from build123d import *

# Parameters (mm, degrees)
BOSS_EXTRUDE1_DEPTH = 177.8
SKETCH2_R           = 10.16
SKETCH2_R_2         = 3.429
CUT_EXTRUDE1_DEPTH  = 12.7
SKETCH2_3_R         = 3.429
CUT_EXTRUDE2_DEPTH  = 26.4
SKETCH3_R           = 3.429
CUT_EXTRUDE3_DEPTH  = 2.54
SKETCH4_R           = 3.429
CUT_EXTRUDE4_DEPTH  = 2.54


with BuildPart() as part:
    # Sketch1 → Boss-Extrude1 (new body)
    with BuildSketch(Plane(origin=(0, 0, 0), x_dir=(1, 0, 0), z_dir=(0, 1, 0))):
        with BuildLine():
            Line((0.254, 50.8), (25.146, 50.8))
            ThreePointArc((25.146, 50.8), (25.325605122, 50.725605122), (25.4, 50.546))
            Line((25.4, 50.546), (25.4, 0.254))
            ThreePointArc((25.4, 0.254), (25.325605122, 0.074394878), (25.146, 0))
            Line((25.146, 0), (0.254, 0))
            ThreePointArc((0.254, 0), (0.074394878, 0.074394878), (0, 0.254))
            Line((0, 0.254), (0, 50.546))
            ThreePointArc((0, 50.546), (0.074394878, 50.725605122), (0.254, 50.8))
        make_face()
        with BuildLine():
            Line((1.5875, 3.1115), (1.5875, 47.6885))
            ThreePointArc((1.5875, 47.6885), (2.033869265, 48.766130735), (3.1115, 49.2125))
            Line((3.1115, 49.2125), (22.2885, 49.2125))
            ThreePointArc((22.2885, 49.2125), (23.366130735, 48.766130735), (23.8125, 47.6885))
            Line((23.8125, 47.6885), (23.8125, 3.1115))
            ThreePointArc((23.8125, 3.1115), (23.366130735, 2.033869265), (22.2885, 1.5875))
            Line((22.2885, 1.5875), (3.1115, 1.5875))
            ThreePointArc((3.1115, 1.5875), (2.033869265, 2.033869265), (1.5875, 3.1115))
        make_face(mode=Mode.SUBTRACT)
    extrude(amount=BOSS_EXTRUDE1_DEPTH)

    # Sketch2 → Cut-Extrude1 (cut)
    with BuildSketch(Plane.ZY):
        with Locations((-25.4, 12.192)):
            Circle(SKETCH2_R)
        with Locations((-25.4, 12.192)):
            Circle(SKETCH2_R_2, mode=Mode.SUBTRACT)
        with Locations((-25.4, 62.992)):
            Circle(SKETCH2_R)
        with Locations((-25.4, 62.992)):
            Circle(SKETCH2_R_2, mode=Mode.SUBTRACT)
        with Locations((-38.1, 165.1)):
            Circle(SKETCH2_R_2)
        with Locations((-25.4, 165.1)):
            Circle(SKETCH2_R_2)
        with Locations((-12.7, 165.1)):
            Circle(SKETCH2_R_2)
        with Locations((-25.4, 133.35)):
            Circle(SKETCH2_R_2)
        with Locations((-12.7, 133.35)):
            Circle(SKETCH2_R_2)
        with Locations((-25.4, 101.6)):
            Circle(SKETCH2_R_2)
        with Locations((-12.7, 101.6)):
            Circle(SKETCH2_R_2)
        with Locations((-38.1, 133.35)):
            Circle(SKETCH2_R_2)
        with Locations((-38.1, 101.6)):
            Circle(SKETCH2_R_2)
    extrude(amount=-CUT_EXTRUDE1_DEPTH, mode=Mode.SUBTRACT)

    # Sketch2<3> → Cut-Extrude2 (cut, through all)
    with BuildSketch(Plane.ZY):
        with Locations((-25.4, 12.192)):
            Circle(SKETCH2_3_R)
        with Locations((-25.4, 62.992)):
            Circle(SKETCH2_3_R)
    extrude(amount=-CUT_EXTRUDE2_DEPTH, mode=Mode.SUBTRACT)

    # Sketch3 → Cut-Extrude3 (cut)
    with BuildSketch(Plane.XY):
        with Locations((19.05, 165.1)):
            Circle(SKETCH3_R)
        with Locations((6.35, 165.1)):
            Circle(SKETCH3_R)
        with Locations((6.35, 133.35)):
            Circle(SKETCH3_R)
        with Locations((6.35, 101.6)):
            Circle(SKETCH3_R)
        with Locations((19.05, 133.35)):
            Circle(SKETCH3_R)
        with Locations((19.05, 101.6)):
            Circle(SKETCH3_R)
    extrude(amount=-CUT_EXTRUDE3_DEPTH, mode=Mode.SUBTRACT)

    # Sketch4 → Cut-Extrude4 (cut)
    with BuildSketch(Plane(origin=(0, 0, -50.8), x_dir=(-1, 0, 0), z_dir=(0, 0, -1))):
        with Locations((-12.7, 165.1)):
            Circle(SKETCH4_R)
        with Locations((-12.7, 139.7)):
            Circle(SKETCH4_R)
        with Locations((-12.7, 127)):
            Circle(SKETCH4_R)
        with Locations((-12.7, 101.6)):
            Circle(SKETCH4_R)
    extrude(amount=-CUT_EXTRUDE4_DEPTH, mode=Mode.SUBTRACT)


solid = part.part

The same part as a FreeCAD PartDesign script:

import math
import FreeCAD as App
import Part
import Sketcher

V = App.Vector
Q = App.Units.Quantity

doc = App.newDocument("Part")
body = doc.addObject("PartDesign::Body", "Body")
body.AllowCompound = True

# Sketch on XZ plane
sketch1 = doc.addObject("Sketcher::SketchObject", "Sketch")
body.addObject(sketch1)
sketch1.AttachmentSupport = (doc.XZ_Plane, [""])
sketch1.MapMode = "FlatFace"
sketch1.addGeometry(Part.LineSegment(V(25.146, -50.8, 0), V(0.254, -50.8, 0)), False)
sketch1.addGeometry(Part.ArcOfCircle(Part.Circle(V(0.254, -50.546, 0), V(0, 0, 1), 0.254), math.radians(-180), math.radians(-90)), False)
sketch1.addGeometry(Part.LineSegment(V(0, -50.546, 0), V(0, -0.254, 0)), False)
sketch1.addGeometry(Part.ArcOfCircle(Part.Circle(V(0.254, -0.254, 0), V(0, 0, 1), 0.254), math.radians(90), math.radians(180)), False)
sketch1.addGeometry(Part.LineSegment(V(0.254, 0, 0), V(25.146, 0, 0)), False)
sketch1.addGeometry(Part.ArcOfCircle(Part.Circle(V(25.146, -0.254, 0), V(0, 0, 1), 0.254), math.radians(0), math.radians(90)), False)
sketch1.addGeometry(Part.LineSegment(V(25.4, -0.254, 0), V(25.4, -50.546, 0)), False)
sketch1.addGeometry(Part.ArcOfCircle(Part.Circle(V(25.146, -50.546, 0), V(0, 0, 1), 0.254), math.radians(-90), math.radians(0)), False)
sketch1.addGeometry(Part.LineSegment(V(1.5875, -3.1115, 0), V(1.5875, -47.6885, 0)), False)
sketch1.addGeometry(Part.ArcOfCircle(Part.Circle(V(3.1115, -47.6885, 0), V(0, 0, 1), 1.524), math.radians(180), math.radians(270)), False)
sketch1.addGeometry(Part.LineSegment(V(3.1115, -49.2125, 0), V(22.2885, -49.2125, 0)), False)
sketch1.addGeometry(Part.ArcOfCircle(Part.Circle(V(22.2885, -47.6885, 0), V(0, 0, 1), 1.524), math.radians(-90), math.radians(0)), False)
sketch1.addGeometry(Part.LineSegment(V(23.8125, -47.6885, 0), V(23.8125, -3.1115, 0)), False)
sketch1.addGeometry(Part.ArcOfCircle(Part.Circle(V(22.2885, -3.1115, 0), V(0, 0, 1), 1.524), math.radians(0), math.radians(90)), False)
sketch1.addGeometry(Part.LineSegment(V(22.2885, -1.5875, 0), V(3.1115, -1.5875, 0)), False)
sketch1.addGeometry(Part.ArcOfCircle(Part.Circle(V(3.1115, -3.1115, 0), V(0, 0, 1), 1.524), math.radians(90), math.radians(180)), False)
sketch1.addConstraint(Sketcher.Constraint("Tangent", 0, 2, 1, 2))
sketch1.addConstraint(Sketcher.Constraint("Tangent", 1, 1, 2, 1))
sketch1.addConstraint(Sketcher.Constraint("Tangent", 2, 2, 3, 2))
sketch1.addConstraint(Sketcher.Constraint("Tangent", 3, 1, 4, 1))
sketch1.addConstraint(Sketcher.Constraint("Tangent", 4, 2, 5, 2))
sketch1.addConstraint(Sketcher.Constraint("Tangent", 5, 1, 6, 1))
sketch1.addConstraint(Sketcher.Constraint("Tangent", 6, 2, 7, 2))
sketch1.addConstraint(Sketcher.Constraint("Tangent", 7, 1, 0, 1))
sketch1.addConstraint(Sketcher.Constraint("Tangent", 8, 2, 9, 1))
sketch1.addConstraint(Sketcher.Constraint("Tangent", 9, 2, 10, 1))
sketch1.addConstraint(Sketcher.Constraint("Tangent", 10, 2, 11, 1))
sketch1.addConstraint(Sketcher.Constraint("Tangent", 11, 2, 12, 1))
sketch1.addConstraint(Sketcher.Constraint("Tangent", 12, 2, 13, 1))
sketch1.addConstraint(Sketcher.Constraint("Tangent", 13, 2, 14, 1))
sketch1.addConstraint(Sketcher.Constraint("Tangent", 14, 2, 15, 1))
sketch1.addConstraint(Sketcher.Constraint("Tangent", 15, 2, 8, 1))
sketch1.addConstraint(Sketcher.Constraint("Horizontal", 0))
sketch1.addConstraint(Sketcher.Constraint("Vertical", 2))
sketch1.addConstraint(Sketcher.Constraint("Horizontal", 4))
sketch1.addConstraint(Sketcher.Constraint("Vertical", 6))
sketch1.addConstraint(Sketcher.Constraint("Vertical", 8))
sketch1.addConstraint(Sketcher.Constraint("Horizontal", 10))
sketch1.addConstraint(Sketcher.Constraint("Vertical", 12))
sketch1.addConstraint(Sketcher.Constraint("Horizontal", 14))
sketch1.addConstraint(Sketcher.Constraint("Equal", 1, 3))
sketch1.addConstraint(Sketcher.Constraint("Equal", 3, 5))
sketch1.addConstraint(Sketcher.Constraint("Equal", 5, 7))
sketch1.addConstraint(Sketcher.Constraint("Equal", 9, 11))
sketch1.addConstraint(Sketcher.Constraint("Equal", 11, 13))
sketch1.addConstraint(Sketcher.Constraint("Equal", 13, 15))
sketch1.addConstraint(Sketcher.Constraint("PointOnObject", 1, 1, -2))
sketch1.addConstraint(Sketcher.Constraint("PointOnObject", 3, 1, -1))
sketch1.addConstraint(Sketcher.Constraint("Radius", 1, Q("0.01 in")))
sketch1.addConstraint(Sketcher.Constraint("Radius", 9, Q("0.06 in")))
sketch1.addConstraint(Sketcher.Constraint("DistanceY", 0, 2, -1, 1, Q("2 in")))
sketch1.addConstraint(Sketcher.Constraint("DistanceX", -1, 1, 5, 1, Q("1 in")))
sketch1.addConstraint(Sketcher.Constraint("DistanceX", 10, 1, 10, 2, Q("0.755 in")))
sketch1.addConstraint(Sketcher.Constraint("DistanceY", 8, 2, 8, 1, Q("1.755 in")))
sketch1.addConstraint(Sketcher.Constraint("DistanceX", -1, 1, 8, 2, Q("0.0625 in")))
sketch1.addConstraint(Sketcher.Constraint("DistanceY", 9, 2, -1, 1, Q("1.9375 in")))
pad1 = doc.addObject("PartDesign::Pad", "Pad")
body.addObject(pad1)
pad1.Profile = sketch1
pad1.Length = Q("7 in")
pad1.Reversed = True

# Sketch on YZ plane
sketch2 = doc.addObject("Sketcher::SketchObject", "Sketch001")
body.addObject(sketch2)
sketch2.AttachmentSupport = (doc.YZ_Plane, [""])
sketch2.MapMode = "FlatFace"
sketch2.addGeometry(Part.Circle(V(12.192, -25.4, 0), V(0, 0, 1), 10.16), False)
sketch2.addGeometry(Part.Circle(V(12.192, -25.4, 0), V(0, 0, 1), 3.429), False)
sketch2.addGeometry(Part.Circle(V(62.992, -25.4, 0), V(0, 0, 1), 10.16), False)
sketch2.addGeometry(Part.Circle(V(62.992, -25.4, 0), V(0, 0, 1), 3.429), False)
sketch2.addGeometry(Part.Circle(V(165.1, -38.1, 0), V(0, 0, 1), 3.429), False)
sketch2.addGeometry(Part.Circle(V(165.1, -25.4, 0), V(0, 0, 1), 3.429), False)
sketch2.addGeometry(Part.Circle(V(165.1, -12.7, 0), V(0, 0, 1), 3.429), False)
sketch2.addGeometry(Part.Circle(V(133.35, -25.4, 0), V(0, 0, 1), 3.429), False)
sketch2.addGeometry(Part.Circle(V(133.35, -12.7, 0), V(0, 0, 1), 3.429), False)
sketch2.addGeometry(Part.Circle(V(101.6, -25.4, 0), V(0, 0, 1), 3.429), False)
sketch2.addGeometry(Part.Circle(V(101.6, -12.7, 0), V(0, 0, 1), 3.429), False)
sketch2.addGeometry(Part.Circle(V(133.35, -38.1, 0), V(0, 0, 1), 3.429), False)
sketch2.addGeometry(Part.Circle(V(101.6, -38.1, 0), V(0, 0, 1), 3.429), False)
sketch2.addConstraint(Sketcher.Constraint("Coincident", 1, 3, 0, 3))
sketch2.addConstraint(Sketcher.Constraint("Coincident", 3, 3, 2, 3))
sketch2.addConstraint(Sketcher.Constraint("Equal", 0, 2))
sketch2.addConstraint(Sketcher.Constraint("Equal", 1, 3))
sketch2.addConstraint(Sketcher.Constraint("Equal", 3, 4))
sketch2.addConstraint(Sketcher.Constraint("Equal", 4, 5))
sketch2.addConstraint(Sketcher.Constraint("Equal", 5, 6))
sketch2.addConstraint(Sketcher.Constraint("Equal", 6, 7))
sketch2.addConstraint(Sketcher.Constraint("Equal", 7, 8))
sketch2.addConstraint(Sketcher.Constraint("Equal", 8, 9))
sketch2.addConstraint(Sketcher.Constraint("Equal", 9, 10))
sketch2.addConstraint(Sketcher.Constraint("Equal", 10, 11))
sketch2.addConstraint(Sketcher.Constraint("Equal", 11, 12))
sketch2.addConstraint(Sketcher.Constraint("Horizontal", 1, 3, 2, 3))
sketch2.addConstraint(Sketcher.Constraint("Horizontal", 3, 3, 5, 3))
sketch2.addConstraint(Sketcher.Constraint("Horizontal", 5, 3, 7, 3))
sketch2.addConstraint(Sketcher.Constraint("Horizontal", 6, 3, 8, 3))
sketch2.addConstraint(Sketcher.Constraint("Horizontal", 7, 3, 9, 3))
sketch2.addConstraint(Sketcher.Constraint("Horizontal", 8, 3, 10, 3))
sketch2.addConstraint(Sketcher.Constraint("Horizontal", 4, 3, 11, 3))
sketch2.addConstraint(Sketcher.Constraint("Horizontal", 11, 3, 12, 3))
sketch2.addConstraint(Sketcher.Constraint("Vertical", 4, 3, 5, 3))
sketch2.addConstraint(Sketcher.Constraint("Vertical", 5, 3, 6, 3))
sketch2.addConstraint(Sketcher.Constraint("Vertical", 7, 3, 8, 3))
sketch2.addConstraint(Sketcher.Constraint("Vertical", 9, 3, 10, 3))
sketch2.addConstraint(Sketcher.Constraint("Vertical", 8, 3, 11, 3))
sketch2.addConstraint(Sketcher.Constraint("Vertical", 10, 3, 12, 3))
sketch2.addConstraint(Sketcher.Constraint("Diameter", 0, Q("0.8 in")))
sketch2.addConstraint(Sketcher.Constraint("Diameter", 1, Q("0.27 in")))
sketch2.addConstraint(Sketcher.Constraint("DistanceY", 0, 3, -1, 1, Q("1 in")))
sketch2.addConstraint(Sketcher.Constraint("DistanceX", -1, 1, 9, 3, Q("4 in")))
sketch2.addConstraint(Sketcher.Constraint("DistanceX", 0, 3, 2, 3, Q("2 in")))
sketch2.addConstraint(Sketcher.Constraint("DistanceY", 4, 3, 6, 3, Q("1 in")))
sketch2.addConstraint(Sketcher.Constraint("DistanceX", -1, 1, 4, 3, Q("6.5 in")))
sketch2.addConstraint(Sketcher.Constraint("DistanceY", 4, 3, -1, 1, Q("1.5 in")))
sketch2.addConstraint(Sketcher.Constraint("DistanceX", -1, 1, 0, 3, Q("0.48 in")))
sketch2.addConstraint(Sketcher.Constraint("DistanceX", -1, 1, 7, 3, Q("5.25 in")))
pocket1 = doc.addObject("PartDesign::Pocket", "Pocket")
body.addObject(pocket1)
pocket1.Profile = sketch2
pocket1.Length = Q("0.5 in")
pocket1.Reversed = True

# Sketch on YZ plane
sketch3 = doc.addObject("Sketcher::SketchObject", "Sketch002")
body.addObject(sketch3)
sketch3.AttachmentSupport = (doc.YZ_Plane, [""])
sketch3.MapMode = "FlatFace"
sketch3.addGeometry(Part.Circle(V(12.192, -25.4, 0), V(0, 0, 1), 3.429), False)
sketch3.addGeometry(Part.Circle(V(62.992, -25.4, 0), V(0, 0, 1), 3.429), False)
sketch3.addConstraint(Sketcher.Constraint("Equal", 0, 1))
sketch3.addConstraint(Sketcher.Constraint("Horizontal", 0, 3, 1, 3))
sketch3.addConstraint(Sketcher.Constraint("Diameter", 0, Q("0.27 in")))
sketch3.addConstraint(Sketcher.Constraint("DistanceY", 0, 3, -1, 1, Q("1 in")))
sketch3.addConstraint(Sketcher.Constraint("DistanceX", 0, 3, 1, 3, Q("2 in")))
sketch3.addConstraint(Sketcher.Constraint("DistanceX", -1, 1, 0, 3, Q("0.48 in")))
pocket2 = doc.addObject("PartDesign::Pocket", "Pocket001")
body.addObject(pocket2)
pocket2.Profile = sketch3
pocket2.Type = "ThroughAll"
pocket2.Reversed = True

# Sketch on XY plane
sketch4 = doc.addObject("Sketcher::SketchObject", "Sketch003")
body.addObject(sketch4)
sketch4.AttachmentSupport = (doc.XY_Plane, [""])
sketch4.MapMode = "FlatFace"
sketch4.addGeometry(Part.Circle(V(19.05, 165.1, 0), V(0, 0, 1), 3.429), False)
sketch4.addGeometry(Part.Circle(V(6.35, 165.1, 0), V(0, 0, 1), 3.429), False)
sketch4.addGeometry(Part.Circle(V(6.35, 133.35, 0), V(0, 0, 1), 3.429), False)
sketch4.addGeometry(Part.Circle(V(6.35, 101.6, 0), V(0, 0, 1), 3.429), False)
sketch4.addGeometry(Part.Circle(V(19.05, 133.35, 0), V(0, 0, 1), 3.429), False)
sketch4.addGeometry(Part.Circle(V(19.05, 101.6, 0), V(0, 0, 1), 3.429), False)
sketch4.addConstraint(Sketcher.Constraint("Equal", 0, 1))
sketch4.addConstraint(Sketcher.Constraint("Equal", 1, 2))
sketch4.addConstraint(Sketcher.Constraint("Equal", 2, 3))
sketch4.addConstraint(Sketcher.Constraint("Equal", 3, 4))
sketch4.addConstraint(Sketcher.Constraint("Equal", 4, 5))
sketch4.addConstraint(Sketcher.Constraint("Horizontal", 0, 3, 1, 3))
sketch4.addConstraint(Sketcher.Constraint("Horizontal", 2, 3, 4, 3))
sketch4.addConstraint(Sketcher.Constraint("Horizontal", 3, 3, 5, 3))
sketch4.addConstraint(Sketcher.Constraint("Vertical", 1, 3, 2, 3))
sketch4.addConstraint(Sketcher.Constraint("Vertical", 2, 3, 3, 3))
sketch4.addConstraint(Sketcher.Constraint("Vertical", 0, 3, 4, 3))
sketch4.addConstraint(Sketcher.Constraint("Vertical", 4, 3, 5, 3))
sketch4.addConstraint(Sketcher.Constraint("Diameter", 0, Q("0.27 in")))
sketch4.addConstraint(Sketcher.Constraint("DistanceY", -1, 1, 3, 3, Q("4 in")))
sketch4.addConstraint(Sketcher.Constraint("DistanceY", -1, 1, 0, 3, Q("6.5 in")))
sketch4.addConstraint(Sketcher.Constraint("DistanceX", 1, 3, 0, 3, Q("0.5 in")))
sketch4.addConstraint(Sketcher.Constraint("DistanceX", -1, 1, 0, 3, Q("0.75 in")))
sketch4.addConstraint(Sketcher.Constraint("DistanceY", -1, 1, 2, 3, Q("5.25 in")))
pocket3 = doc.addObject("PartDesign::Pocket", "Pocket002")
body.addObject(pocket3)
pocket3.Profile = sketch4
pocket3.Length = Q("0.1 in")

# Sketch on XY plane
sketch5 = doc.addObject("Sketcher::SketchObject", "Sketch004")
body.addObject(sketch5)
sketch5.AttachmentSupport = (doc.XY_Plane, [""])
sketch5.MapMode = "FlatFace"
sketch5.AttachmentOffset = App.Placement(V(0, 0, -2 * 25.4), App.Rotation())
sketch5.addGeometry(Part.Circle(V(12.7, 165.1, 0), V(0, 0, 1), 3.429), False)
sketch5.addGeometry(Part.Circle(V(12.7, 139.7, 0), V(0, 0, 1), 3.429), False)
sketch5.addGeometry(Part.Circle(V(12.7, 127, 0), V(0, 0, 1), 3.429), False)
sketch5.addGeometry(Part.Circle(V(12.7, 101.6, 0), V(0, 0, 1), 3.429), False)
sketch5.addConstraint(Sketcher.Constraint("Equal", 0, 1))
sketch5.addConstraint(Sketcher.Constraint("Equal", 1, 2))
sketch5.addConstraint(Sketcher.Constraint("Equal", 2, 3))
sketch5.addConstraint(Sketcher.Constraint("Vertical", 0, 3, 1, 3))
sketch5.addConstraint(Sketcher.Constraint("Vertical", 1, 3, 2, 3))
sketch5.addConstraint(Sketcher.Constraint("Vertical", 2, 3, 3, 3))
sketch5.addConstraint(Sketcher.Constraint("Diameter", 0, Q("0.27 in")))
sketch5.addConstraint(Sketcher.Constraint("DistanceY", -1, 1, 2, 3, Q("5 in")))
sketch5.addConstraint(Sketcher.Constraint("DistanceY", -1, 1, 3, 3, Q("4 in")))
sketch5.addConstraint(Sketcher.Constraint("DistanceY", 1, 3, 0, 3, Q("1 in")))
sketch5.addConstraint(Sketcher.Constraint("DistanceX", -1, 1, 0, 3, Q("0.5 in")))
sketch5.addConstraint(Sketcher.Constraint("DistanceY", -1, 1, 0, 3, Q("6.5 in")))
pocket4 = doc.addObject("PartDesign::Pocket", "Pocket003")
body.addObject(pocket4)
pocket4.Profile = sketch5
pocket4.Length = Q("0.1 in")
pocket4.Reversed = True

doc.recompute()
